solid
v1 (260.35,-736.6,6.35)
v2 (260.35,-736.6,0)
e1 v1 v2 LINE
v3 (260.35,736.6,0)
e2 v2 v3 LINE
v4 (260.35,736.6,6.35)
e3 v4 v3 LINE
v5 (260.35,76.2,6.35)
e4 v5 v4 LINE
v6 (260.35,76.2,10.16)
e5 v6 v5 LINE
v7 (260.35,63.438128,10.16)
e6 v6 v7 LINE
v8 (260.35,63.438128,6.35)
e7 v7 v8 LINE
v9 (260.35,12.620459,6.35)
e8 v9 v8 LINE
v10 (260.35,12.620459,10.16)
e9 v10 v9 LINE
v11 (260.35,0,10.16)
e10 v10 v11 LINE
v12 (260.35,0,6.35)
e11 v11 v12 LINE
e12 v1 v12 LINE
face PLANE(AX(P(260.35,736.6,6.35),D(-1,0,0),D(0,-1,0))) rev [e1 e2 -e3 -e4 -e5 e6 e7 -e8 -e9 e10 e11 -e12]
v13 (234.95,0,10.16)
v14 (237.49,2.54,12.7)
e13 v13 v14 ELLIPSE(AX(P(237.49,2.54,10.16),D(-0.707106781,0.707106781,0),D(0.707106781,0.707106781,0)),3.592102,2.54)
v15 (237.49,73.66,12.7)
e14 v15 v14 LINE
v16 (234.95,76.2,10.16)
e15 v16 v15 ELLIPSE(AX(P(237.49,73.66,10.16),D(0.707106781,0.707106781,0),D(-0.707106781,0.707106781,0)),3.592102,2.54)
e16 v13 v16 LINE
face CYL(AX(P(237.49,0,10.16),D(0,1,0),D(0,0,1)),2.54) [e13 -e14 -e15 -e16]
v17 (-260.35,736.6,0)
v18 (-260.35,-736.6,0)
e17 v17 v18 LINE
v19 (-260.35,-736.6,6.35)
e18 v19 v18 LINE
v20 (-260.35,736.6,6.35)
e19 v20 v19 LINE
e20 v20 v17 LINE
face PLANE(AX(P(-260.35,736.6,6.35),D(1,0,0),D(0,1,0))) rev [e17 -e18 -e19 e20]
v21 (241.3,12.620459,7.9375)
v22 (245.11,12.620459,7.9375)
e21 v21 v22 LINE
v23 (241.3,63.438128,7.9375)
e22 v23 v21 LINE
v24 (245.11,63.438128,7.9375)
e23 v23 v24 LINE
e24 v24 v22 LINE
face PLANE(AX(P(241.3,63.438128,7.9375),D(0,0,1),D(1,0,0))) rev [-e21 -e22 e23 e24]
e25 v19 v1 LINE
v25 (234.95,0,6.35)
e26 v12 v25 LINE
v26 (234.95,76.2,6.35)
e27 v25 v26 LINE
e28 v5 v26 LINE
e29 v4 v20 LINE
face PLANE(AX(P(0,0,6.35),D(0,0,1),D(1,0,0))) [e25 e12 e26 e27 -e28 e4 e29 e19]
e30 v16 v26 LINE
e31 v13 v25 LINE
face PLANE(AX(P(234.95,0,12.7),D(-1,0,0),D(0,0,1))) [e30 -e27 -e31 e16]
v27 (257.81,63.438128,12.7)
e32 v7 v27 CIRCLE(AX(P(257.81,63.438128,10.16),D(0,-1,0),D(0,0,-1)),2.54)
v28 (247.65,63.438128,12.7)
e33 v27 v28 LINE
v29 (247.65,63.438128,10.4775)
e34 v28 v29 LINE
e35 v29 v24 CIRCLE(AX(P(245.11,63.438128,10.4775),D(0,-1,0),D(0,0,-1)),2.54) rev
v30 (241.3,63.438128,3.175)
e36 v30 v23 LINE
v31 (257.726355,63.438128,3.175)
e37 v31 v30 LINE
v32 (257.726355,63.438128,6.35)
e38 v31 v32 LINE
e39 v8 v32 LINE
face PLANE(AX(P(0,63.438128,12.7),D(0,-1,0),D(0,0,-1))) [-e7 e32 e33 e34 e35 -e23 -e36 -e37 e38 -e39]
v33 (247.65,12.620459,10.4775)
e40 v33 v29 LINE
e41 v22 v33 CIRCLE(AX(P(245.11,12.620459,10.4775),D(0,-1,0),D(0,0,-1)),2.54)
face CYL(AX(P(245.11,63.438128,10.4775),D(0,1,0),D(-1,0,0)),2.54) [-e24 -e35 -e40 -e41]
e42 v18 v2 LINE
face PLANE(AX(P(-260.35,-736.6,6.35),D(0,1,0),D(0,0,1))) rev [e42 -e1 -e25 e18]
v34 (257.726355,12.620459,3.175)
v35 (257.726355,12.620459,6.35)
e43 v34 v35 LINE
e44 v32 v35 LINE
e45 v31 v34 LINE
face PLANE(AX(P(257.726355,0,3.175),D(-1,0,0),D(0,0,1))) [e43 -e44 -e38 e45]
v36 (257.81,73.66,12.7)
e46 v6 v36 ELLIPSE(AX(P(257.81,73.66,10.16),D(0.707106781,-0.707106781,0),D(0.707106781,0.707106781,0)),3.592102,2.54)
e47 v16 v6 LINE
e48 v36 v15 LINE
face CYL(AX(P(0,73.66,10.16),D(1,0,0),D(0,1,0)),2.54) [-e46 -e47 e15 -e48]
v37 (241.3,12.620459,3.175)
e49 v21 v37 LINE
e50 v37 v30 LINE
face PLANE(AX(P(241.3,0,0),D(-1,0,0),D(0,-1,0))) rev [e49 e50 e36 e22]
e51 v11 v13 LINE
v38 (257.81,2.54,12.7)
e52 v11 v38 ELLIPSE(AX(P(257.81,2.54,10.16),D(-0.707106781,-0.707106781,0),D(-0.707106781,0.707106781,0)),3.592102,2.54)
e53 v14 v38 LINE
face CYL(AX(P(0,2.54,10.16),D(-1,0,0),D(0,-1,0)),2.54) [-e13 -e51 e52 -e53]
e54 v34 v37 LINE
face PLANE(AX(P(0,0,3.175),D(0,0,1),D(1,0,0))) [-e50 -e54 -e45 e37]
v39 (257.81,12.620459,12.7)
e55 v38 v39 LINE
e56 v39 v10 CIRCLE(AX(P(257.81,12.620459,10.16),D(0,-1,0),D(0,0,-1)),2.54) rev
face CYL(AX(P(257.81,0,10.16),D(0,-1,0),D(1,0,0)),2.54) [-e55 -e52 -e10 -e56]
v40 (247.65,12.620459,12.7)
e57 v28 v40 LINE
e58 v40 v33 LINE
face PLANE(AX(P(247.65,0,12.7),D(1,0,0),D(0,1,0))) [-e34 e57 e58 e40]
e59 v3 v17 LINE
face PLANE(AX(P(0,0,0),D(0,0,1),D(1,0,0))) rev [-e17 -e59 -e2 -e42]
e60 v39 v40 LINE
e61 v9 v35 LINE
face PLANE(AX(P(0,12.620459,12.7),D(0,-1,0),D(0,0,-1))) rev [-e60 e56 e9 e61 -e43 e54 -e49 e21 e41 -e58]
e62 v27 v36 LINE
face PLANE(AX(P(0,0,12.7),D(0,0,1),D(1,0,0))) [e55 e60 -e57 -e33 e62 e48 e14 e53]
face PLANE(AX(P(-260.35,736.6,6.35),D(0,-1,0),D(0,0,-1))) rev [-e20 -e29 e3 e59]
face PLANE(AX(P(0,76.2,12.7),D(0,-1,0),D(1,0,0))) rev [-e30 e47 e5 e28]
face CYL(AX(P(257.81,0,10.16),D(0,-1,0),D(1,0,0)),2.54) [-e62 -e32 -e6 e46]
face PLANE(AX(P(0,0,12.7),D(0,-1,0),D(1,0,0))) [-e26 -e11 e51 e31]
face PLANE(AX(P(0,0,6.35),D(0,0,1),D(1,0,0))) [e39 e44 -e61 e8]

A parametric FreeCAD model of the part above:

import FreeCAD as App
import Part
import Sketcher

V = App.Vector
Q = App.Units.Quantity


def edges_at(feature, points):
    """Names of the edges that pass closest to the given points."""
    edges = feature.Shape.Edges
    near = lambda p: min(range(len(edges)), key=lambda i: edges[i].distToShape(Part.Vertex(*p))[0])
    return sorted({f"Edge{near(p) + 1}" for p in points})

doc = App.newDocument("Part")
body = doc.addObject("PartDesign::Body", "Body")

sketch1 = body.newObject("Sketcher::SketchObject", "Sketch")
sketch1.AttachmentSupport = (doc.getObject("XY_Plane"), [""])
sketch1.MapMode = "FlatFace"
sketch1.addGeometry([
    Part.LineSegment(V(-260, 737, 0), V(-260, -737, 0)),
    Part.LineSegment(V(-260, -737, 0), V(260, -737, 0)),
    Part.LineSegment(V(260, -737, 0), V(260, 737, 0)),
    Part.LineSegment(V(260, 737, 0), V(-260, 737, 0)),
], False)
sketch1.addConstraint([
    Sketcher.Constraint("Coincident", 0, 2, 1, 1),
    Sketcher.Constraint("Coincident", 1, 2, 2, 1),
    Sketcher.Constraint("Coincident", 2, 2, 3, 1),
    Sketcher.Constraint("Coincident", 3, 2, 0, 1),
    Sketcher.Constraint("Vertical", 0),
    Sketcher.Constraint("Horizontal", 1),
    Sketcher.Constraint("Vertical", 2),
    Sketcher.Constraint("Horizontal", 3),
    Sketcher.Constraint("Symmetric", 0, 2, 2, 2, -1, 1),
    Sketcher.Constraint("DistanceY", 0, 2, 0, 1, Q("58 in")),
    Sketcher.Constraint("DistanceX", 1, 1, 1, 2, Q("20.5 in")),
])
pad1 = body.newObject("PartDesign::Pad", "Pad")
pad1.Profile = sketch1
pad1.Length = Q("0.25 in")

sketch2 = body.newObject("Sketcher::SketchObject", "Sketch001")
sketch2.AttachmentSupport = (doc.getObject("XY_Plane"), [""])
sketch2.MapMode = "FlatFace"
sketch2.AttachmentOffset = App.Placement(V(0, 0, 0.25 * 25.4), App.Rotation())
sketch2.addGeometry([
    Part.LineSegment(V(235, 0, 0), V(260, 0, 0)),
    Part.LineSegment(V(260, 0, 0), V(260, 13, 0)),
    Part.LineSegment(V(260, 13, 0), V(248, 13, 0)),
    Part.LineSegment(V(248, 13, 0), V(248, 63, 0)),
    Part.LineSegment(V(248, 63, 0), V(260, 63, 0)),
    Part.LineSegment(V(260, 63, 0), V(260, 76, 0)),
    Part.LineSegment(V(260, 76, 0), V(235, 76, 0)),
    Part.LineSegment(V(235, 76, 0), V(235, 0, 0)),
], False)
sketch2.addConstraint([
    Sketcher.Constraint("Coincident", 0, 2, 1, 1),
    Sketcher.Constraint("Coincident", 1, 2, 2, 1),
    Sketcher.Constraint("Coincident", 2, 2, 3, 1),
    Sketcher.Constraint("Coincident", 3, 2, 4, 1),
    Sketcher.Constraint("Coincident", 4, 2, 5, 1),
    Sketcher.Constraint("Coincident", 5, 2, 6, 1),
    Sketcher.Constraint("Coincident", 6, 2, 7, 1),
    Sketcher.Constraint("Coincident", 7, 2, 0, 1),
    Sketcher.Constraint("Horizontal", 0),
    Sketcher.Constraint("Vertical", 1),
    Sketcher.Constraint("Horizontal", 2),
    Sketcher.Constraint("Vertical", 3),
    Sketcher.Constraint("Horizontal", 4),
    Sketcher.Constraint("Vertical", 5),
    Sketcher.Constraint("Horizontal", 6),
    Sketcher.Constraint("Vertical", 7),
    Sketcher.Constraint("PointOnObject", 0, 2, -1),
    Sketcher.Constraint("Vertical", 1, 2, 4, 2),
    Sketcher.Constraint("DistanceX", 0, 1, 0, 2, Q("1 in")),
    Sketcher.Constraint("DistanceY", 7, 2, 7, 1, Q("3 in")),
    Sketcher.Constraint("DistanceX", 2, 2, 2, 1, Q("0.5 in")),
    Sketcher.Constraint("DistanceX", -1, 1, 0, 2, Q("10.25 in")),
    Sketcher.Constraint("DistanceY", 1, 1, 1, 2, 12.620459),
    Sketcher.Constraint("DistanceY", 3, 1, 3, 2, 50.817669),
])
pad2 = body.newObject("PartDesign::Pad", "Pad001")
pad2.Profile = sketch2
pad2.Length = Q("0.25 in")

sketch3 = body.newObject("Sketcher::SketchObject", "Sketch002")
sketch3.AttachmentSupport = (doc.getObject("XY_Plane"), [""])
sketch3.MapMode = "FlatFace"
sketch3.AttachmentOffset = App.Placement(V(0, 0, 0.25 * 25.4), App.Rotation())
sketch3.addGeometry([
    Part.LineSegment(V(248, 63, 0), V(248, 13, 0)),
    Part.LineSegment(V(248, 13, 0), V(258, 13, 0)),
    Part.LineSegment(V(258, 13, 0), V(258, 63, 0)),
    Part.LineSegment(V(258, 63, 0), V(248, 63, 0)),
], False)
sketch3.addConstraint([
    Sketcher.Constraint("Coincident", 0, 2, 1, 1),
    Sketcher.Constraint("Coincident", 1, 2, 2, 1),
    Sketcher.Constraint("Coincident", 2, 2, 3, 1),
    Sketcher.Constraint("Coincident", 3, 2, 0, 1),
    Sketcher.Constraint("Vertical", 0),
    Sketcher.Constraint("Horizontal", 1),
    Sketcher.Constraint("Vertical", 2),
    Sketcher.Constraint("Horizontal", 3),
    Sketcher.Constraint("DistanceX", -1, 1, 0, 2, Q("9.75 in")),
    Sketcher.Constraint("DistanceY", 0, 2, 0, 1, 50.817669),
    Sketcher.Constraint("DistanceX", 1, 1, 1, 2, 10.076355),
    Sketcher.Constraint("DistanceY", -1, 1, 0, 2, 12.620459),
])
pocket1 = body.newObject("PartDesign::Pocket", "Pocket")
pocket1.Profile = sketch3
pocket1.Length = Q("0.125 in")

sketch4 = body.newObject("Sketcher::SketchObject", "Sketch003")
sketch4.AttachmentSupport = (doc.getObject("YZ_Plane"), [""])
sketch4.MapMode = "FlatFace"
sketch4.AttachmentOffset = App.Placement(V(0, 0, 9.75 * 25.4), App.Rotation())
sketch4.addGeometry([
    Part.LineSegment(V(63.4, 7.9, 0), V(12.6, 7.9, 0)),
    Part.LineSegment(V(12.6, 7.9, 0), V(12.6, 3.2, 0)),
    Part.LineSegment(V(12.6, 3.2, 0), V(63.4, 3.2, 0)),
    Part.LineSegment(V(63.4, 3.2, 0), V(63.4, 7.9, 0)),
], False)
sketch4.addConstraint([
    Sketcher.Constraint("Coincident", 0, 2, 1, 1),
    Sketcher.Constraint("Coincident", 1, 2, 2, 1),
    Sketcher.Constraint("Coincident", 2, 2, 3, 1),
    Sketcher.Constraint("Coincident", 3, 2, 0, 1),
    Sketcher.Constraint("Horizontal", 0),
    Sketcher.Constraint("Vertical", 1),
    Sketcher.Constraint("Horizontal", 2),
    Sketcher.Constraint("Vertical", 3),
    Sketcher.Constraint("DistanceY", 1, 2, 1, 1, Q("0.1875 in")),
    Sketcher.Constraint("DistanceY", -1, 1, 0, 2, Q("0.3125 in")),
    Sketcher.Constraint("DistanceX", 0, 2, 0, 1, 50.817669),
    Sketcher.Constraint("DistanceX", -1, 1, 0, 2, 12.620459),
])
pocket2 = body.newObject("PartDesign::Pocket", "Pocket001")
pocket2.Profile = sketch4
pocket2.Length = Q("0.25 in")
doc.recompute()

fillet = body.newObject("PartDesign::Fillet", "Fillet")
fillet.Base = (pocket2, edges_at(pocket2, [(247.65, 38.029, 7.938)]))
fillet.Radius = Q("0.1 in")
doc.recompute()

fillet2 = body.newObject("PartDesign::Fillet", "Fillet001")
fillet2.Base = (fillet, edges_at(fillet, [
    (234.95, 38.1, 12.7),
    (247.65, 0, 12.7),
    (260.35, 69.819, 12.7),
    (247.65, 76.2, 12.7),
    (260.35, 6.31, 12.7),
]))
fillet2.Radius = Q("0.1 in")

doc.recompute()
